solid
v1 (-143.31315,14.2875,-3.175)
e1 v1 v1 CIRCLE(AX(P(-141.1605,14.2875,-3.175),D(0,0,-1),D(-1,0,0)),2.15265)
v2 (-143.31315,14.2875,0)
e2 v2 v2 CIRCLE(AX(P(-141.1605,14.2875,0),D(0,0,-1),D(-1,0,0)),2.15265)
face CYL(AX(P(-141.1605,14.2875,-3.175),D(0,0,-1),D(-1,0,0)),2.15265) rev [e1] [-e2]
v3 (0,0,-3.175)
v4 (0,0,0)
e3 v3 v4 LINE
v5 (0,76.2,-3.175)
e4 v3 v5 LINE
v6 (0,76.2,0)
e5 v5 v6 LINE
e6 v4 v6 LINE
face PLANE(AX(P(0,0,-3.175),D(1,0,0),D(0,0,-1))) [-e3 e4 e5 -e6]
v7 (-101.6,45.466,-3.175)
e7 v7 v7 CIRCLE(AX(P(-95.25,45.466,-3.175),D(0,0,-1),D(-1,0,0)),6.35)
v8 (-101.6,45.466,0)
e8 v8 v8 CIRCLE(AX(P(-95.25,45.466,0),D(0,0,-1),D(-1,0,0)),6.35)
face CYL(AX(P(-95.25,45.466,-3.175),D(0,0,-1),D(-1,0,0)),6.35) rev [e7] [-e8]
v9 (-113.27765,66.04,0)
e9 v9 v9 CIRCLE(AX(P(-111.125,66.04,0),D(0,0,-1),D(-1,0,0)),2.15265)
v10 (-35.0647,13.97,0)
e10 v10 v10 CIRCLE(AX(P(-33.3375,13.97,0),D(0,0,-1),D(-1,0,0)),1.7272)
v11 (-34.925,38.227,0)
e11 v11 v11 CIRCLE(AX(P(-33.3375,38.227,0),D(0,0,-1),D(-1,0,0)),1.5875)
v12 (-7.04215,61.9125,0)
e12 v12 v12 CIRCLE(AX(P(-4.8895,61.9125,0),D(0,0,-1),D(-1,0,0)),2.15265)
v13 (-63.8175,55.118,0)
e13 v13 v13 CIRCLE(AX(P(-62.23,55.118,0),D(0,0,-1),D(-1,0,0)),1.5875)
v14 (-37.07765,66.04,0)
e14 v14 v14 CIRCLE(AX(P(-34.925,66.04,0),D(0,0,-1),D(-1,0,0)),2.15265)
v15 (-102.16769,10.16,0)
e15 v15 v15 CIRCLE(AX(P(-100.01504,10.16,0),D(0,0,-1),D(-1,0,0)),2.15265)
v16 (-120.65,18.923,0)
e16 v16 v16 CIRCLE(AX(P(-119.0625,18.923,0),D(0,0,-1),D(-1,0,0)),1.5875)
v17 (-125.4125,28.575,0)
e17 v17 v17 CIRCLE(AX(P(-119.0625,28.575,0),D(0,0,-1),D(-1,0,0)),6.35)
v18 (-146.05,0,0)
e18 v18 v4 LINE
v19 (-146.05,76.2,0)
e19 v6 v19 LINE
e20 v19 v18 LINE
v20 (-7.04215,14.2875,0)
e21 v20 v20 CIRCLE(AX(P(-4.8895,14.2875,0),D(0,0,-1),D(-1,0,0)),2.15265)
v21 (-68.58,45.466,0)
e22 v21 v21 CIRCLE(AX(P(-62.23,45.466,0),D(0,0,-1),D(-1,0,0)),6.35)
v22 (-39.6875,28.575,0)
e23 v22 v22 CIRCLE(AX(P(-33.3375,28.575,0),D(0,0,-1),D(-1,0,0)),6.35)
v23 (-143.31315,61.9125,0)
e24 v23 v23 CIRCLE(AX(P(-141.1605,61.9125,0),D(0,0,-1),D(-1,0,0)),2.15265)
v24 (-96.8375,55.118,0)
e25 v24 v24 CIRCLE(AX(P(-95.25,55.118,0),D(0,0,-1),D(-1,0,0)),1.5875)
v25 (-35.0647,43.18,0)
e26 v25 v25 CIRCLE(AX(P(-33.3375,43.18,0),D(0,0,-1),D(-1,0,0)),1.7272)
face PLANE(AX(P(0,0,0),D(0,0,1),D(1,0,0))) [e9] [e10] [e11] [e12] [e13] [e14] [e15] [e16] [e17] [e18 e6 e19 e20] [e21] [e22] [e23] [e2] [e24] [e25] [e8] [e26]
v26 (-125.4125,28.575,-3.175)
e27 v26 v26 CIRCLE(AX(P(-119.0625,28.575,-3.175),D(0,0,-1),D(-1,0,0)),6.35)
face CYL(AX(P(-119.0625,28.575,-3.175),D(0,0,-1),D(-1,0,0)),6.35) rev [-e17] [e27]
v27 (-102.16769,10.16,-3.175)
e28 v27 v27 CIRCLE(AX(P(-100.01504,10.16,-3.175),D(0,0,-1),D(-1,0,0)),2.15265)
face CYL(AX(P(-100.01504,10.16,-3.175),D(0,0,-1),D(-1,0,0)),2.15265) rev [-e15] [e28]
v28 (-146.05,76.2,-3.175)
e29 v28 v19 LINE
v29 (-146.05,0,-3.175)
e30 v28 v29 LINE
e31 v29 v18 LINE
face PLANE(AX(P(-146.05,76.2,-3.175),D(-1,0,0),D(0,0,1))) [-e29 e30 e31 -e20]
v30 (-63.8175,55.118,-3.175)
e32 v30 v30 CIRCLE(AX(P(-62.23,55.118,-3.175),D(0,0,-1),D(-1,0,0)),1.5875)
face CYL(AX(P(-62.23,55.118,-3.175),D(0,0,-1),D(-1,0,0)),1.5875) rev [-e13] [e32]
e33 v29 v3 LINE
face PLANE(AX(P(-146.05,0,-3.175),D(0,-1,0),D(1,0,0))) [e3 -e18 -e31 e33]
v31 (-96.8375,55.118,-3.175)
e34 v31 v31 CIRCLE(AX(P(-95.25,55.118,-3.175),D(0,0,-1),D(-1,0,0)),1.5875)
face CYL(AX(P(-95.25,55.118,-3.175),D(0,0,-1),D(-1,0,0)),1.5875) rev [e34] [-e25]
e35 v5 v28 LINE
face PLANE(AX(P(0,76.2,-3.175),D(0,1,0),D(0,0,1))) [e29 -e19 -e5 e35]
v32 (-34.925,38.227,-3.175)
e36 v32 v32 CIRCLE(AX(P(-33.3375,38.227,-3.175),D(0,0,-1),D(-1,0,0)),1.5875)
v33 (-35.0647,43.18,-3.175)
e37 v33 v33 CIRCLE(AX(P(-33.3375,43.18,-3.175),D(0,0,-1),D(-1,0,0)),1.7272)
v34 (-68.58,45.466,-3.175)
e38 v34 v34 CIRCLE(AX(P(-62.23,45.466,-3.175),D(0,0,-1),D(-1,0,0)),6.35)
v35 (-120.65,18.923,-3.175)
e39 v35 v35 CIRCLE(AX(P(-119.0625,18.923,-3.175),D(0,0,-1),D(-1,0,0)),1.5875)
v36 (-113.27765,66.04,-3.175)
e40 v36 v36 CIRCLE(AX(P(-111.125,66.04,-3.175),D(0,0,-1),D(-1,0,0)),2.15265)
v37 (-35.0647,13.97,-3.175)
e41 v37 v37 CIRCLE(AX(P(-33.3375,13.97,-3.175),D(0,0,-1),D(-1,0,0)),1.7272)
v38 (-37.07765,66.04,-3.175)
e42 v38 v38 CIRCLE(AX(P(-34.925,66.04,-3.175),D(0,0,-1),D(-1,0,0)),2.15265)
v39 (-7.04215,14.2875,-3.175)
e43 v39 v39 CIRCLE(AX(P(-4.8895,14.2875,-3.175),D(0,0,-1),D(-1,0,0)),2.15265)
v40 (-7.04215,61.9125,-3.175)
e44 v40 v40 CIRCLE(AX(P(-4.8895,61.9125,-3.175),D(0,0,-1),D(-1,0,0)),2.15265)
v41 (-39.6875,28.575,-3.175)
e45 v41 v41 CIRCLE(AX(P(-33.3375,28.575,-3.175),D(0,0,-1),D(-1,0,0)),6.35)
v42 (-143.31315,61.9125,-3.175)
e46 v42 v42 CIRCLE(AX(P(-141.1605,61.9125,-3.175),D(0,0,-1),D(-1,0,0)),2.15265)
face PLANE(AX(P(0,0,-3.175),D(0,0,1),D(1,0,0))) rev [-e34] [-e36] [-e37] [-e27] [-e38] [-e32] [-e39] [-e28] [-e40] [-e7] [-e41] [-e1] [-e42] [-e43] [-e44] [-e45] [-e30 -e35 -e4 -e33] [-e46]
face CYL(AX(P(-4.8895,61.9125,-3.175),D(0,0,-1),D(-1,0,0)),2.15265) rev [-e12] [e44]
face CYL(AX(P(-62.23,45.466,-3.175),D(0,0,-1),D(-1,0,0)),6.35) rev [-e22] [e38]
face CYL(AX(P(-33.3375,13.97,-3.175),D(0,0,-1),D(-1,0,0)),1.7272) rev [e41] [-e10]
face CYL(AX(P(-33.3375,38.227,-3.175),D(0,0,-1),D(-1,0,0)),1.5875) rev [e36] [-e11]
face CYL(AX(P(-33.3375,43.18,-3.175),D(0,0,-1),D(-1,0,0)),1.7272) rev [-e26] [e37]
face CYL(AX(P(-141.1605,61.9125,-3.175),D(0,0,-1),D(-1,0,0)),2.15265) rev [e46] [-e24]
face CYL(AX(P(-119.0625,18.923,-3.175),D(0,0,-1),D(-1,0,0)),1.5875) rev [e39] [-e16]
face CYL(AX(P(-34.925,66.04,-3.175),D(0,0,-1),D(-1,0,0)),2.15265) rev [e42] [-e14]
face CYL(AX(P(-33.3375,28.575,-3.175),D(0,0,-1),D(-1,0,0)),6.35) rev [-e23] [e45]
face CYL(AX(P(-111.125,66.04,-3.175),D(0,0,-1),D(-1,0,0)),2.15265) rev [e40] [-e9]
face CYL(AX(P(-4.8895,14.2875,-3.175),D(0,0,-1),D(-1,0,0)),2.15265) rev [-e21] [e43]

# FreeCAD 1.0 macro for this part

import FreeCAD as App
import Part
import Sketcher

V = App.Vector
Q = App.Units.Quantity

doc = App.newDocument("Part")
body = doc.addObject("PartDesign::Body", "Body")

sketch1 = body.newObject("Sketcher::SketchObject", "Sketch")
sketch1.AttachmentSupport = (doc.getObject("XY_Plane"), [""])
sketch1.MapMode = "FlatFace"
sketch1.addGeometry([
    Part.LineSegment(V(-146, 76, 0), V(-146, 0, 0)),
    Part.LineSegment(V(-146, 0, 0), V(0, 0, 0)),
    Part.LineSegment(V(0, 0, 0), V(0, 76, 0)),
    Part.LineSegment(V(0, 76, 0), V(-146, 76, 0)),
], False)
sketch1.addConstraint([
    Sketcher.Constraint("Coincident", 0, 2, 1, 1),
    Sketcher.Constraint("Coincident", 1, 2, 2, 1),
    Sketcher.Constraint("Coincident", 2, 2, 3, 1),
    Sketcher.Constraint("Coincident", 3, 2, 0, 1),
    Sketcher.Constraint("Vertical", 0),
    Sketcher.Constraint("Horizontal", 1),
    Sketcher.Constraint("Vertical", 2),
    Sketcher.Constraint("Horizontal", 3),
    Sketcher.Constraint("Coincident", 1, 2, -1, 1),
    Sketcher.Constraint("DistanceY", 0, 2, 0, 1, Q("3 in")),
    Sketcher.Constraint("DistanceX", 1, 1, 1, 2, Q("5.75 in")),
])
pad1 = body.newObject("PartDesign::Pad", "Pad")
pad1.Profile = sketch1
pad1.Length = Q("0.125 in")
pad1.Reversed = True

sketch2 = body.newObject("Sketcher::SketchObject", "Sketch001")
sketch2.AttachmentSupport = (doc.getObject("XY_Plane"), [""])
sketch2.MapMode = "FlatFace"
sketch2.AttachmentOffset = App.Placement(V(0, 0, -0.125 * 25.4), App.Rotation())
sketch2.addGeometry([
    Part.Circle(V(-95.2, 55.1, 0), V(0, 0, 1), 1.6),
    Part.Circle(V(-119.1, 18.9, 0), V(0, 0, 1), 1.6),
    Part.Circle(V(-62.2, 55.1, 0), V(0, 0, 1), 1.6),
    Part.Circle(V(-33.3, 38.2, 0), V(0, 0, 1), 1.6),
], False)
sketch2.addConstraint([
    Sketcher.Constraint("Equal", 0, 1),
    Sketcher.Constraint("Equal", 1, 2),
    Sketcher.Constraint("Equal", 2, 3),
    Sketcher.Constraint("Horizontal", 0, 3, 2, 3),
    Sketcher.Constraint("Diameter", 0, Q("0.125 in")),
    Sketcher.Constraint("DistanceX", 0, 3, 2, 3, Q("1.3 in")),
    Sketcher.Constraint("DistanceX", 0, 3, -1, 1, Q("3.75 in")),
    Sketcher.Constraint("DistanceY", -1, 1, 0, 3, Q("2.17 in")),
    Sketcher.Constraint("DistanceY", 1, 3, 3, 3, Q("0.76 in")),
    Sketcher.Constraint("DistanceX", 1, 3, -1, 1, Q("4.6875 in")),
    Sketcher.Constraint("DistanceY", -1, 1, 1, 3, Q("0.745 in")),
    Sketcher.Constraint("DistanceX", 3, 3, -1, 1, Q("1.3125 in")),
])
doc.recompute()
hole = body.newObject("PartDesign::Hole", "Hole")
hole.Profile = sketch2
hole.ThreadType = "None"
hole.Diameter = Q("0.125 in")
hole.DepthType = "ThroughAll"
hole.Reversed = True

sketch3 = body.newObject("Sketcher::SketchObject", "Sketch002")
sketch3.AttachmentSupport = (doc.getObject("XY_Plane"), [""])
sketch3.MapMode = "FlatFace"
sketch3.AttachmentOffset = App.Placement(V(0, 0, -0.125 * 25.4), App.Rotation())
sketch3.addGeometry([
    Part.Circle(V(-95, 45, 0), V(0, 0, 1), 6),
    Part.Circle(V(-119, 29, 0), V(0, 0, 1), 6),
    Part.Circle(V(-62, 45, 0), V(0, 0, 1), 6),
    Part.Circle(V(-33, 29, 0), V(0, 0, 1), 6),
], False)
sketch3.addConstraint([
    Sketcher.Constraint("Equal", 0, 1),
    Sketcher.Constraint("Equal", 1, 2),
    Sketcher.Constraint("Equal", 2, 3),
    Sketcher.Constraint("Horizontal", 0, 3, 2, 3),
    Sketcher.Constraint("Horizontal", 1, 3, 3, 3),
    Sketcher.Constraint("Diameter", 0, Q("0.5 in")),
    Sketcher.Constraint("DistanceX", 0, 3, 2, 3, Q("1.3 in")),
    Sketcher.Constraint("DistanceX", 0, 3, -1, 1, Q("3.75 in")),
    Sketcher.Constraint("DistanceY", -1, 1, 0, 3, Q("1.79 in")),
    Sketcher.Constraint("DistanceX", 1, 3, -1, 1, Q("4.6875 in")),
    Sketcher.Constraint("DistanceY", -1, 1, 1, 3, Q("1.125 in")),
    Sketcher.Constraint("DistanceX", 3, 3, -1, 1, Q("1.3125 in")),
])
doc.recompute()
hole2 = body.newObject("PartDesign::Hole", "Hole001")
hole2.Profile = sketch3
hole2.ThreadType = "None"
hole2.Diameter = Q("0.5 in")
hole2.DepthType = "ThroughAll"
hole2.Reversed = True

sketch4 = body.newObject("Sketcher::SketchObject", "Sketch003")
sketch4.AttachmentSupport = (doc.getObject("XY_Plane"), [""])
sketch4.MapMode = "FlatFace"
sketch4.AttachmentOffset = App.Placement(V(0, 0, -0.125 * 25.4), App.Rotation())
sketch4.addGeometry([
    Part.Circle(V(-141.2, 61.9, 0), V(0, 0, 1), 2.2),
    Part.Circle(V(-141.2, 14.3, 0), V(0, 0, 1), 2.2),
    Part.Circle(V(-4.9, 61.9, 0), V(0, 0, 1), 2.2),
    Part.Circle(V(-4.9, 14.3, 0), V(0, 0, 1), 2.2),
    Part.Circle(V(-111.1, 66, 0), V(0, 0, 1), 2.2),
    Part.Circle(V(-100, 10.2, 0), V(0, 0, 1), 2.2),
    Part.Circle(V(-34.9, 66, 0), V(0, 0, 1), 2.2),
], False)
sketch4.addConstraint([
    Sketcher.Constraint("Equal", 0, 1),
    Sketcher.Constraint("Equal", 1, 2),
    Sketcher.Constraint("Equal", 2, 3),
    Sketcher.Constraint("Equal", 3, 4),
    Sketcher.Constraint("Equal", 4, 5),
    Sketcher.Constraint("Equal", 5, 6),
    Sketcher.Constraint("Horizontal", 0, 3, 2, 3),
    Sketcher.Constraint("Horizontal", 1, 3, 3, 3),
    Sketcher.Constraint("Horizontal", 4, 3, 6, 3),
    Sketcher.Constraint("Vertical", 0, 3, 1, 3),
    Sketcher.Constraint("Vertical", 2, 3, 3, 3),
    Sketcher.Constraint("DistanceX", 4, 3, 6, 3, Q("3 in")),
    Sketcher.Constraint("Diameter", 0, Q("0.1695 in")),
    Sketcher.Constraint("DistanceY", -1, 1, 4, 3, Q("2.6 in")),
    Sketcher.Constraint("DistanceY", -1, 1, 5, 3, Q("0.4 in")),
    Sketcher.Constraint("DistanceY", -1, 1, 0, 3, Q("2.4375 in")),
    Sketcher.Constraint("DistanceY", -1, 1, 1, 3, Q("0.5625 in")),
    Sketcher.Constraint("DistanceX", 4, 3, -1, 1, Q("4.375 in")),
    Sketcher.Constraint("DistanceX", 0, 3, 2, 3, Q("5.365 in")),
    Sketcher.Constraint("DistanceX", 0, 3, -1, 1, Q("5.5575 in")),
    Sketcher.Constraint("DistanceX", 5, 3, -1, 1, Q("3.9376 in")),
])
doc.recompute()
hole3 = body.newObject("PartDesign::Hole", "Hole002")
hole3.Profile = sketch4
hole3.ThreadType = "None"
hole3.Diameter = Q("0.1695 in")
hole3.DepthType = "ThroughAll"
hole3.Reversed = True

sketch5 = body.newObject("Sketcher::SketchObject", "Sketch004")
sketch5.AttachmentSupport = (doc.getObject("XY_Plane"), [""])
sketch5.MapMode = "FlatFace"
sketch5.AttachmentOffset = App.Placement(V(0, 0, -0.125 * 25.4), App.Rotation())
sketch5.addGeometry([
    Part.Circle(V(-33.3, 43.2, 0), V(0, 0, 1), 1.7),
    Part.Circle(V(-33.3, 14, 0), V(0, 0, 1), 1.7),
], False)
sketch5.addConstraint([
    Sketcher.Constraint("Equal", 0, 1),
    Sketcher.Constraint("Vertical", 0, 3, 1, 3),
    Sketcher.Constraint("Diameter", 0, Q("0.136 in")),
    Sketcher.Constraint("DistanceY", -1, 1, 0, 3, Q("1.7 in")),
    Sketcher.Constraint("DistanceY", -1, 1, 1, 3, Q("0.55 in")),
    Sketcher.Constraint("DistanceX", 0, 3, -1, 1, Q("1.3125 in")),
])
doc.recompute()
hole4 = body.newObject("PartDesign::Hole", "Hole003")
hole4.Profile = sketch5
hole4.ThreadType = "None"
hole4.Diameter = Q("0.136 in")
hole4.DepthType = "ThroughAll"
hole4.Reversed = True

doc.recompute()
